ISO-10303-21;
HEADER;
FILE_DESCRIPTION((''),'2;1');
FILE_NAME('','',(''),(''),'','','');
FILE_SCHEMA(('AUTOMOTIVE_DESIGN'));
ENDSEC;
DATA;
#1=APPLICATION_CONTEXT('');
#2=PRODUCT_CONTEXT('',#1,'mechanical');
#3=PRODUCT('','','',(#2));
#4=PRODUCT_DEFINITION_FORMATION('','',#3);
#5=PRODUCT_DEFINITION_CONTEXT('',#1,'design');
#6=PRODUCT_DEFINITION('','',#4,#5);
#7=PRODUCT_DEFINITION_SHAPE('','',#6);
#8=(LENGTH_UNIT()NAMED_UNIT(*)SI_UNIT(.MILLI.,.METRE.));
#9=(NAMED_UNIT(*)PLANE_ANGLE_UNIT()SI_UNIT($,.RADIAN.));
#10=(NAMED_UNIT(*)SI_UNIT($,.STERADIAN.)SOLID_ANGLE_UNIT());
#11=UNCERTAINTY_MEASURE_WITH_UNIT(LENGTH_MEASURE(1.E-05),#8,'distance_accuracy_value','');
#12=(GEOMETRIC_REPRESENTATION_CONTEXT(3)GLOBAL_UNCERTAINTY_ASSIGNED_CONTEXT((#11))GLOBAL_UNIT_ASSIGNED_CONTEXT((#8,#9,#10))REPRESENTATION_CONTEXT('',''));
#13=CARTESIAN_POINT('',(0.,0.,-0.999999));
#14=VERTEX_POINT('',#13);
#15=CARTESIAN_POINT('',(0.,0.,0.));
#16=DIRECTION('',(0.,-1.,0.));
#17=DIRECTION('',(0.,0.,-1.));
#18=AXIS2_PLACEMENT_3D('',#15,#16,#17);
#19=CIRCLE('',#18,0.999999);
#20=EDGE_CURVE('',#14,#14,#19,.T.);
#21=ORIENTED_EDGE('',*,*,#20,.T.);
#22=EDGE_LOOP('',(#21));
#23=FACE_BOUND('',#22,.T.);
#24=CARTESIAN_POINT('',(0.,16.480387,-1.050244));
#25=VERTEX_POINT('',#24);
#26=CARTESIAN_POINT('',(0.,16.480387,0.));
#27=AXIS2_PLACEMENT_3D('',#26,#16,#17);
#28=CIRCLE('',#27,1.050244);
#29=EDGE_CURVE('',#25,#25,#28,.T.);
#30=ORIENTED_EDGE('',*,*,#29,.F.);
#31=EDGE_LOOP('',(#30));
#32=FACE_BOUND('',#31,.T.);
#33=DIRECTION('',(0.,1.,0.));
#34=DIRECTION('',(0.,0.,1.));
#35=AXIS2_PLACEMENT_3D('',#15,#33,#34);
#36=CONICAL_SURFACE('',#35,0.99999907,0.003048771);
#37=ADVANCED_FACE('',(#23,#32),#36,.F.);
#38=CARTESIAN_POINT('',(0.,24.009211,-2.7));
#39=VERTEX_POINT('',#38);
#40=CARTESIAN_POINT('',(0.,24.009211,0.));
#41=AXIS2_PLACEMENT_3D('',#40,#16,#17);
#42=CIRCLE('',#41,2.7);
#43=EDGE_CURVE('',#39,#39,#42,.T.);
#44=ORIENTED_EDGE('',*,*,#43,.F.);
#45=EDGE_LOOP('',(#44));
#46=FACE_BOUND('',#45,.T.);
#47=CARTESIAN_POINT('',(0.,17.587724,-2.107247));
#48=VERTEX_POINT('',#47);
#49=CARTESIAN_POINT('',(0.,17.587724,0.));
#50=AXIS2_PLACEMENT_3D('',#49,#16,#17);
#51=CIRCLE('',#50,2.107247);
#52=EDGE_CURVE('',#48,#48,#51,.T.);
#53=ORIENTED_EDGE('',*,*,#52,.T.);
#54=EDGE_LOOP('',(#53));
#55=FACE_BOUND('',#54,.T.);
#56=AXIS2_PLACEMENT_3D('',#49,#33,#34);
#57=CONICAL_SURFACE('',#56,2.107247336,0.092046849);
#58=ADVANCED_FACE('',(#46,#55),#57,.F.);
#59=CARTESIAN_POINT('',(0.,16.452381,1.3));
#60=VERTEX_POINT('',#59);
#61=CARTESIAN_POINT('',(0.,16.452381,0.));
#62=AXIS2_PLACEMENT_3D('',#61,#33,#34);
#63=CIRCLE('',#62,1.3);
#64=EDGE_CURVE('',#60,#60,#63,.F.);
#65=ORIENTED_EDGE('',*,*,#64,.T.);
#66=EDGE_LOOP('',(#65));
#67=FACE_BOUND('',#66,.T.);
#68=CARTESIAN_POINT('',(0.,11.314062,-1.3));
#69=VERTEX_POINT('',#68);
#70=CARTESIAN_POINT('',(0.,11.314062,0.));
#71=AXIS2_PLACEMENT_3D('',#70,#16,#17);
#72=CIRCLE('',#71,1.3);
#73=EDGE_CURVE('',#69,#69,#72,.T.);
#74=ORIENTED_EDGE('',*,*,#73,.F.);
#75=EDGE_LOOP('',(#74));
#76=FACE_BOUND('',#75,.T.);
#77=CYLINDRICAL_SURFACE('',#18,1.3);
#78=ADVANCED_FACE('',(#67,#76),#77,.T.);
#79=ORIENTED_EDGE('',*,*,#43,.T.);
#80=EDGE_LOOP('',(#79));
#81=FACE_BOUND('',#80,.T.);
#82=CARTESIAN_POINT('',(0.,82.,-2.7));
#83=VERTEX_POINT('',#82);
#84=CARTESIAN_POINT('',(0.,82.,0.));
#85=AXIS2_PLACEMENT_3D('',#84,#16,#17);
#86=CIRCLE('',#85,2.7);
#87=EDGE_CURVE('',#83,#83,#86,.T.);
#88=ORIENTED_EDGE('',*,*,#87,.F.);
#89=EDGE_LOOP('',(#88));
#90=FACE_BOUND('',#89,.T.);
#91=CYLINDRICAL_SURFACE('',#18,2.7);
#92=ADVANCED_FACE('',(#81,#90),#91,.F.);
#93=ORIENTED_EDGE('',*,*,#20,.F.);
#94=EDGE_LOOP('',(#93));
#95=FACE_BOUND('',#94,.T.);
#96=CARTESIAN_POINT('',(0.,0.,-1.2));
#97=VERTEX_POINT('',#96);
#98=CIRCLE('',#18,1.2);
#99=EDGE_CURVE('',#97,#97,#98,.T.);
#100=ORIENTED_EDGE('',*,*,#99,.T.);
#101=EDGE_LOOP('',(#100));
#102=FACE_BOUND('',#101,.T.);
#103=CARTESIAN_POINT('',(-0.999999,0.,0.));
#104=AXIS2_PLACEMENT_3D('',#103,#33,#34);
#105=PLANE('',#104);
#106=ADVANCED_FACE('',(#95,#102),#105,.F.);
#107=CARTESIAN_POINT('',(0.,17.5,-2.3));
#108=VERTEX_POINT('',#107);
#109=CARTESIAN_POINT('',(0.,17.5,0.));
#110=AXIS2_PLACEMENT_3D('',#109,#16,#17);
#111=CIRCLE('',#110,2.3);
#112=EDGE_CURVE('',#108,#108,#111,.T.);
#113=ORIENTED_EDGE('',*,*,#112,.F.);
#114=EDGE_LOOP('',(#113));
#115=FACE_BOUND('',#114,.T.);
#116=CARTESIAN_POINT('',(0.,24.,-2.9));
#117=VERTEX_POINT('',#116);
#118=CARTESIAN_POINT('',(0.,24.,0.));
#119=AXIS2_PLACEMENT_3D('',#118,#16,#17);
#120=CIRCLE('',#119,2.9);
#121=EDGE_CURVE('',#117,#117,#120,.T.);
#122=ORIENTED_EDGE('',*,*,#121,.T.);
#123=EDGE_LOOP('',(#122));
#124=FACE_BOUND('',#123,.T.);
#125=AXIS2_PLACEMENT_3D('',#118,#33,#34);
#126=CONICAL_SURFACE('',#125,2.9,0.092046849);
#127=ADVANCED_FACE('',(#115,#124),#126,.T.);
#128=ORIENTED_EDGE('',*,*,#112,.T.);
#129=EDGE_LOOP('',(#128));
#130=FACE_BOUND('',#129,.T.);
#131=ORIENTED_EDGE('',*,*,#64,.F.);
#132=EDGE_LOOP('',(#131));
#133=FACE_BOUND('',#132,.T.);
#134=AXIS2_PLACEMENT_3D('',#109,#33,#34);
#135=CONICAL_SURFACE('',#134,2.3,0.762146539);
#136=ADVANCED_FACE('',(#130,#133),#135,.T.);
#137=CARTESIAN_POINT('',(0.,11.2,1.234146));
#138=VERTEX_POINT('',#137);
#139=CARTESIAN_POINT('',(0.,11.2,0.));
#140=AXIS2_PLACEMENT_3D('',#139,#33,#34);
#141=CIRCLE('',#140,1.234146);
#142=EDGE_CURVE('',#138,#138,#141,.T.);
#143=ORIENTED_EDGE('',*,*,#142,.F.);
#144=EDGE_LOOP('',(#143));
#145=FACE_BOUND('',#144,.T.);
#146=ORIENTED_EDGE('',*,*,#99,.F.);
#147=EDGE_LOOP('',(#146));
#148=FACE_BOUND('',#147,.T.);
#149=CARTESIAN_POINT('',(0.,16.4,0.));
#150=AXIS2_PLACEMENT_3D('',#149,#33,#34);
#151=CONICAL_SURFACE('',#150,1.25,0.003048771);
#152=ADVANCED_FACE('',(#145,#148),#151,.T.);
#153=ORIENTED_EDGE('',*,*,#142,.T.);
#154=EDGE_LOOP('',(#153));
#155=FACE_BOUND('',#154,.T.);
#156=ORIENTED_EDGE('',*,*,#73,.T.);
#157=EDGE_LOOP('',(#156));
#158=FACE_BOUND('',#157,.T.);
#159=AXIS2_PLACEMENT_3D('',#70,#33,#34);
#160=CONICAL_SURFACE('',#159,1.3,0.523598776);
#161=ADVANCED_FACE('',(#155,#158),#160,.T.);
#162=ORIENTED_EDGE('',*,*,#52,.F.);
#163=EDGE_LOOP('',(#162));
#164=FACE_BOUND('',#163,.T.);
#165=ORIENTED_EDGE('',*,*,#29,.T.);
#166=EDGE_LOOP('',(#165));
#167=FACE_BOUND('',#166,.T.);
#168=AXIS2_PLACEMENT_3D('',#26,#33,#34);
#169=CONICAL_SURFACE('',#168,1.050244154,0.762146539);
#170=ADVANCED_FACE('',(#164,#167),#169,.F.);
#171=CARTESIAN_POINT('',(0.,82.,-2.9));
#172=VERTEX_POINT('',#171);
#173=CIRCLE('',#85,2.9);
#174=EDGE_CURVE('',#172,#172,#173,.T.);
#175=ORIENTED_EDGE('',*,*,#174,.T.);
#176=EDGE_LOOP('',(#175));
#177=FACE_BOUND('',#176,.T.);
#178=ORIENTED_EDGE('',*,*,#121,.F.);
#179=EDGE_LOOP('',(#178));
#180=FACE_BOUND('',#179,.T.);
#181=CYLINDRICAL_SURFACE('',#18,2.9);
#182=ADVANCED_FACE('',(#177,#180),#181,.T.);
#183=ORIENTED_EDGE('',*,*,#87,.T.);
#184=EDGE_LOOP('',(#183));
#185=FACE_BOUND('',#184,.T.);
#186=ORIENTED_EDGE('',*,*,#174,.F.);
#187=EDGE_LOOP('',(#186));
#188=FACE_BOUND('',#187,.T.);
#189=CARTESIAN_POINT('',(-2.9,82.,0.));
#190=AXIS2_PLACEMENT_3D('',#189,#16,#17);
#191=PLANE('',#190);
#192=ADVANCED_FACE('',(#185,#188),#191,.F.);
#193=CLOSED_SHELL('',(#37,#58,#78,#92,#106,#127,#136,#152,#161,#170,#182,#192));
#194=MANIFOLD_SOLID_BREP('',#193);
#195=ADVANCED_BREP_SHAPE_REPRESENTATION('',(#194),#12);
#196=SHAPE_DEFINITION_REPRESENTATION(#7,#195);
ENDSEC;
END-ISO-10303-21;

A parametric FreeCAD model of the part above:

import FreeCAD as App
import Part
import Sketcher

V = App.Vector
Q = App.Units.Quantity

doc = App.newDocument("Part")
body = doc.addObject("PartDesign::Body", "Body")

# Sketch on XY plane
sketch1 = body.newObject("Sketcher::SketchObject", "Sketch")
sketch1.AttachmentSupport = (doc.getObject("XY_Plane"), [""])
sketch1.MapMode = "FlatFace"
sketch1.addGeometry(Part.LineSegment(V(-1.2, 0, 0), V(-0.999999, 0, 0)), False)
sketch1.addGeometry(Part.LineSegment(V(-0.999999, 0, 0), V(-1.050244, 16.480387, 0)), False)
sketch1.addGeometry(Part.LineSegment(V(-1.050244, 16.480387, 0), V(-2.107247, 17.587724, 0)), False)
sketch1.addGeometry(Part.LineSegment(V(-2.107247, 17.587724, 0), V(-2.7, 24.009211, 0)), False)
sketch1.addGeometry(Part.LineSegment(V(-2.7, 24.009211, 0), V(-2.7, 82, 0)), False)
sketch1.addGeometry(Part.LineSegment(V(-2.7, 82, 0), V(-2.9, 82, 0)), False)
sketch1.addGeometry(Part.LineSegment(V(-2.9, 82, 0), V(-2.9, 24, 0)), False)
sketch1.addGeometry(Part.LineSegment(V(-2.9, 24, 0), V(-2.3, 17.5, 0)), False)
sketch1.addGeometry(Part.LineSegment(V(-2.3, 17.5, 0), V(-1.25, 16.4, 0)), False)
sketch1.addGeometry(Part.LineSegment(V(-1.25, 16.4, 0), V(-1.2, 0, 0)), False)
sketch1.addConstraint(Sketcher.Constraint("Coincident", 0, 2, 1, 1))
sketch1.addConstraint(Sketcher.Constraint("Coincident", 1, 2, 2, 1))
sketch1.addConstraint(Sketcher.Constraint("Coincident", 2, 2, 3, 1))
sketch1.addConstraint(Sketcher.Constraint("Coincident", 3, 2, 4, 1))
sketch1.addConstraint(Sketcher.Constraint("Coincident", 4, 2, 5, 1))
sketch1.addConstraint(Sketcher.Constraint("Coincident", 5, 2, 6, 1))
sketch1.addConstraint(Sketcher.Constraint("Coincident", 6, 2, 7, 1))
sketch1.addConstraint(Sketcher.Constraint("Coincident", 7, 2, 8, 1))
sketch1.addConstraint(Sketcher.Constraint("Coincident", 8, 2, 9, 1))
sketch1.addConstraint(Sketcher.Constraint("Coincident", 9, 2, 0, 1))
sketch1.addConstraint(Sketcher.Constraint("Horizontal", 0))
sketch1.addConstraint(Sketcher.Constraint("Vertical", 4))
sketch1.addConstraint(Sketcher.Constraint("Horizontal", 5))
sketch1.addConstraint(Sketcher.Constraint("Vertical", 6))
sketch1.addConstraint(Sketcher.Constraint("PointOnObject", 0, 2, -1))
sketch1.addConstraint(Sketcher.Constraint("Parallel", 3, 7))
sketch1.addConstraint(Sketcher.Constraint("Parallel", 2, 8))
sketch1.addConstraint(Sketcher.Constraint("Parallel", 1, 9))
sketch1.addConstraint(Sketcher.Constraint("Equal", 0, 5))
sketch1.addConstraint(Sketcher.Constraint("DistanceY", 6, 2, 6, 1, 58.0))
sketch1.addConstraint(Sketcher.Constraint("DistanceX", 0, 1, 0, 2, 0.200001))
sketch1.addConstraint(Sketcher.Constraint("DistanceX", 0, 2, -1, 1, 0.999999))
sketch1.addConstraint(Sketcher.Constraint("DistanceY", -1, 1, 4, 2, 82.0))
sketch1.addConstraint(Sketcher.Constraint("DistanceX", 3, 2, -1, 1, 2.7))
sketch1.addConstraint(Sketcher.Constraint("DistanceX", 7, 2, -1, 1, 2.3))
sketch1.addConstraint(Sketcher.Constraint("DistanceY", -1, 1, 7, 2, 17.5))
sketch1.addConstraint(Sketcher.Constraint("DistanceY", -1, 1, 8, 2, 16.4))
sketch1.addConstraint(Sketcher.Constraint("DistanceX", 8, 2, -1, 1, 1.25))
sketch1.addConstraint(Sketcher.Constraint("DistanceY", 4, 1, 4, 2, 57.990789))
sketch1.addConstraint(Sketcher.Constraint("DistanceX", 2, 2, 0, 2, 1.107248))
revolution = body.newObject("PartDesign::Revolution", "Revolution")
revolution.Profile = sketch1
revolution.ReferenceAxis = (sketch1, ["V_Axis"])
revolution.Angle = 360

# Sketch on XY plane
sketch2 = body.newObject("Sketcher::SketchObject", "Sketch001")
sketch2.AttachmentSupport = (doc.getObject("XY_Plane"), [""])
sketch2.MapMode = "FlatFace"
sketch2.addGeometry(Part.LineSegment(V(-1.3, 11.314062, 0), V(-1.234146, 11.2, 0)), False)
sketch2.addGeometry(Part.LineSegment(V(-1.234146, 11.2, 0), V(-1.25, 16.4, 0)), False)
sketch2.addGeometry(Part.LineSegment(V(-1.25, 16.4, 0), V(-1.3, 16.452381, 0)), False)
sketch2.addGeometry(Part.LineSegment(V(-1.3, 16.452381, 0), V(-1.3, 11.314062, 0)), False)
sketch2.addConstraint(Sketcher.Constraint("Coincident", 0, 2, 1, 1))
sketch2.addConstraint(Sketcher.Constraint("Coincident", 1, 2, 2, 1))
sketch2.addConstraint(Sketcher.Constraint("Coincident", 2, 2, 3, 1))
sketch2.addConstraint(Sketcher.Constraint("Coincident", 3, 2, 0, 1))
sketch2.addConstraint(Sketcher.Constraint("Vertical", 3))
sketch2.addConstraint(Sketcher.Constraint("Angle", 0, Q("-60 deg")))
sketch2.addConstraint(Sketcher.Constraint("DistanceY", -1, 1, 0, 2, 11.2))
sketch2.addConstraint(Sketcher.Constraint("DistanceY", -1, 1, 1, 2, 16.4))
sketch2.addConstraint(Sketcher.Constraint("DistanceX", 2, 2, -1, 1, 1.3))
sketch2.addConstraint(Sketcher.Constraint("DistanceX", 1, 2, -1, 1, 1.25))
sketch2.addConstraint(Sketcher.Constraint("DistanceY", 3, 2, 3, 1, 5.138319))
sketch2.addConstraint(Sketcher.Constraint("DistanceY", -1, 1, 2, 2, 16.452381))
revolution2 = body.newObject("PartDesign::Revolution", "Revolution001")
revolution2.Profile = sketch2
revolution2.ReferenceAxis = (sketch2, ["V_Axis"])
revolution2.Angle = 360

doc.recompute()
